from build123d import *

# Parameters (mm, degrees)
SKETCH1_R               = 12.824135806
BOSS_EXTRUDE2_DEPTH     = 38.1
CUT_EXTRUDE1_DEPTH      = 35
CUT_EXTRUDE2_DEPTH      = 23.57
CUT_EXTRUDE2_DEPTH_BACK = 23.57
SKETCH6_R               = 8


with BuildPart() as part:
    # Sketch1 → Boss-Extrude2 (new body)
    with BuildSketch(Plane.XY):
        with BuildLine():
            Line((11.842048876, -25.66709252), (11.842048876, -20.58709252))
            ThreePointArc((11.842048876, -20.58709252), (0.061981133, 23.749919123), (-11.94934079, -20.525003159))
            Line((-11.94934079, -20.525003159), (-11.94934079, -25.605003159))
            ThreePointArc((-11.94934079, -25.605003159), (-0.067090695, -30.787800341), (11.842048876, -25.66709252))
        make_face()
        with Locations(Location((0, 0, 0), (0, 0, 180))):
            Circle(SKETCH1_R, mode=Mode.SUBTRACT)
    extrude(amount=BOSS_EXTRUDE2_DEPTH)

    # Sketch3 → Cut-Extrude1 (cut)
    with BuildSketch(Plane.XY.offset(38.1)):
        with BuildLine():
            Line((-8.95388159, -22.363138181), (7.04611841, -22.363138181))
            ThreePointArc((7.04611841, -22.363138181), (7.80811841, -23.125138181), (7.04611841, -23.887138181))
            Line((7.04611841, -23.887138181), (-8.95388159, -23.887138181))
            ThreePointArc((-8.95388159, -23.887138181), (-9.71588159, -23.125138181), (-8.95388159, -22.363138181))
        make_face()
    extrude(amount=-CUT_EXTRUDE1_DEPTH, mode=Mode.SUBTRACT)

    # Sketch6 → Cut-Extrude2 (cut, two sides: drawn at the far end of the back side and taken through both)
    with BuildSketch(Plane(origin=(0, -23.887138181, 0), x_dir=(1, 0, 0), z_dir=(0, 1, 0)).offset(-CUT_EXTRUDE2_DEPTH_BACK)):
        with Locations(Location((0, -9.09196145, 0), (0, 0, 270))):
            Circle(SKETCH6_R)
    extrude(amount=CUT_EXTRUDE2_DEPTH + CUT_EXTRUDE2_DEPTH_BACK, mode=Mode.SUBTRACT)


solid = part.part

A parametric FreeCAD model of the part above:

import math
import FreeCAD as App
import Part
import Sketcher

V = App.Vector

doc = App.newDocument("Part")
body = doc.addObject("PartDesign::Body", "Body")

# Sketch on XY plane
sketch1 = body.newObject("Sketcher::SketchObject", "Sketch")
sketch1.AttachmentSupport = (doc.getObject("XY_Plane"), [""])
sketch1.MapMode = "FlatFace"
sketch1.addGeometry([
    Part.LineSegment(V(11.842049, -25.667093, 0), V(11.842049, -20.587093, 0)),  # 0
    Part.ArcOfCircle(Part.Circle(V(0, 0, 0), V(0, 0, 1), 23.75), math.radians(-60.091748), math.radians(239.792695)),  # 1
    Part.LineSegment(V(-11.949341, -20.525003, 0), V(-11.949341, -25.605003, 0)),  # 2
    Part.ArcOfCircle(Part.Circle(V(-0.024526, -14.478, 0), V(0, 0, 1), 16.309856), math.radians(-136.982186), math.radians(-43.316868)),  # 3
    Part.Circle(V(0, 0, 0), V(0, 0, 1), 12.824136),  # 4
], False)
sketch1.addConstraint([
    Sketcher.Constraint("Coincident", 0, 2, 1, 1),
    Sketcher.Constraint("Coincident", 1, 2, 2, 1),
    Sketcher.Constraint("Coincident", 2, 2, 3, 1),
    Sketcher.Constraint("Coincident", 3, 2, 0, 1),
    Sketcher.Constraint("Vertical", 0),
    Sketcher.Constraint("Vertical", 2),
    Sketcher.Constraint("Coincident", 1, 3, -1, 1),
    Sketcher.Constraint("Coincident", 4, 3, -1, 1),
    Sketcher.Constraint("Equal", 0, 2),
    Sketcher.Constraint("Radius", 1, 23.75),
    Sketcher.Constraint("DistanceY", 0, 1, 0, 2, 5.08),
    Sketcher.Constraint("Diameter", 4, 25.648272),
    Sketcher.Constraint("DistanceY", 3, 3, -1, 1, 14.478),
    Sketcher.Constraint("Radius", 3, 16.309856),
    Sketcher.Constraint("DistanceX", -1, 1, 0, 2, 11.842049),
])
pad1 = body.newObject("PartDesign::Pad", "Pad")
pad1.Profile = sketch1
pad1.Length = 38.1

# Sketch on XY plane
sketch2 = body.newObject("Sketcher::SketchObject", "Sketch001")
sketch2.AttachmentSupport = (doc.getObject("XY_Plane"), [""])
sketch2.MapMode = "FlatFace"
sketch2.AttachmentOffset = App.Placement(V(0, 0, 38.1), App.Rotation())
sketch2.addGeometry([
    Part.LineSegment(V(7.046118, -22.363138, 0), V(-8.953882, -22.363138, 0)),
    Part.ArcOfCircle(Part.Circle(V(-8.953882, -23.125138, 0), V(0, 0, 1), 0.762), math.radians(90), math.radians(270)),
    Part.LineSegment(V(-8.953882, -23.887138, 0), V(7.046118, -23.887138, 0)),
    Part.ArcOfCircle(Part.Circle(V(7.046118, -23.125138, 0), V(0, 0, 1), 0.762), math.radians(-90), math.radians(90)),
], False)
sketch2.addConstraint([
    Sketcher.Constraint("Tangent", 0, 2, 1, 1),
    Sketcher.Constraint("Tangent", 1, 2, 2, 1),
    Sketcher.Constraint("Tangent", 2, 2, 3, 1),
    Sketcher.Constraint("Tangent", 3, 2, 0, 1),
    Sketcher.Constraint("Horizontal", 0),
    Sketcher.Constraint("Horizontal", 2),
    Sketcher.Constraint("DistanceX", 0, 2, 0, 1, 16.0),
    Sketcher.Constraint("Radius", 1, 0.762),
    Sketcher.Constraint("DistanceX", 1, 3, -1, 1, 8.953882),
    Sketcher.Constraint("DistanceY", 1, 3, -1, 1, 23.125138),
])
pocket1 = body.newObject("PartDesign::Pocket", "Pocket")
pocket1.Profile = sketch2
pocket1.Length = 35

# Sketch on XZ plane
sketch3 = body.newObject("Sketcher::SketchObject", "Sketch002")
sketch3.AttachmentSupport = (doc.getObject("XZ_Plane"), [""])
sketch3.MapMode = "FlatFace"
sketch3.AttachmentOffset = App.Placement(V(0, 0, 23.887138), App.Rotation())
sketch3.addGeometry(Part.Circle(V(0, 9.091961, 0), V(0, 0, 1), 8), False)
sketch3.addConstraint([
    Sketcher.Constraint("PointOnObject", 0, 3, -2),
    Sketcher.Constraint("Diameter", 0, 16.0),
    Sketcher.Constraint("DistanceY", -1, 1, 0, 3, 9.091961),
])
pocket2 = body.newObject("PartDesign::Pocket", "Pocket001")
pocket2.Profile = sketch3
pocket2.Type = "TwoLengths"
pocket2.Length = 23.57
pocket2.Length2 = 23.57

doc.recompute()
